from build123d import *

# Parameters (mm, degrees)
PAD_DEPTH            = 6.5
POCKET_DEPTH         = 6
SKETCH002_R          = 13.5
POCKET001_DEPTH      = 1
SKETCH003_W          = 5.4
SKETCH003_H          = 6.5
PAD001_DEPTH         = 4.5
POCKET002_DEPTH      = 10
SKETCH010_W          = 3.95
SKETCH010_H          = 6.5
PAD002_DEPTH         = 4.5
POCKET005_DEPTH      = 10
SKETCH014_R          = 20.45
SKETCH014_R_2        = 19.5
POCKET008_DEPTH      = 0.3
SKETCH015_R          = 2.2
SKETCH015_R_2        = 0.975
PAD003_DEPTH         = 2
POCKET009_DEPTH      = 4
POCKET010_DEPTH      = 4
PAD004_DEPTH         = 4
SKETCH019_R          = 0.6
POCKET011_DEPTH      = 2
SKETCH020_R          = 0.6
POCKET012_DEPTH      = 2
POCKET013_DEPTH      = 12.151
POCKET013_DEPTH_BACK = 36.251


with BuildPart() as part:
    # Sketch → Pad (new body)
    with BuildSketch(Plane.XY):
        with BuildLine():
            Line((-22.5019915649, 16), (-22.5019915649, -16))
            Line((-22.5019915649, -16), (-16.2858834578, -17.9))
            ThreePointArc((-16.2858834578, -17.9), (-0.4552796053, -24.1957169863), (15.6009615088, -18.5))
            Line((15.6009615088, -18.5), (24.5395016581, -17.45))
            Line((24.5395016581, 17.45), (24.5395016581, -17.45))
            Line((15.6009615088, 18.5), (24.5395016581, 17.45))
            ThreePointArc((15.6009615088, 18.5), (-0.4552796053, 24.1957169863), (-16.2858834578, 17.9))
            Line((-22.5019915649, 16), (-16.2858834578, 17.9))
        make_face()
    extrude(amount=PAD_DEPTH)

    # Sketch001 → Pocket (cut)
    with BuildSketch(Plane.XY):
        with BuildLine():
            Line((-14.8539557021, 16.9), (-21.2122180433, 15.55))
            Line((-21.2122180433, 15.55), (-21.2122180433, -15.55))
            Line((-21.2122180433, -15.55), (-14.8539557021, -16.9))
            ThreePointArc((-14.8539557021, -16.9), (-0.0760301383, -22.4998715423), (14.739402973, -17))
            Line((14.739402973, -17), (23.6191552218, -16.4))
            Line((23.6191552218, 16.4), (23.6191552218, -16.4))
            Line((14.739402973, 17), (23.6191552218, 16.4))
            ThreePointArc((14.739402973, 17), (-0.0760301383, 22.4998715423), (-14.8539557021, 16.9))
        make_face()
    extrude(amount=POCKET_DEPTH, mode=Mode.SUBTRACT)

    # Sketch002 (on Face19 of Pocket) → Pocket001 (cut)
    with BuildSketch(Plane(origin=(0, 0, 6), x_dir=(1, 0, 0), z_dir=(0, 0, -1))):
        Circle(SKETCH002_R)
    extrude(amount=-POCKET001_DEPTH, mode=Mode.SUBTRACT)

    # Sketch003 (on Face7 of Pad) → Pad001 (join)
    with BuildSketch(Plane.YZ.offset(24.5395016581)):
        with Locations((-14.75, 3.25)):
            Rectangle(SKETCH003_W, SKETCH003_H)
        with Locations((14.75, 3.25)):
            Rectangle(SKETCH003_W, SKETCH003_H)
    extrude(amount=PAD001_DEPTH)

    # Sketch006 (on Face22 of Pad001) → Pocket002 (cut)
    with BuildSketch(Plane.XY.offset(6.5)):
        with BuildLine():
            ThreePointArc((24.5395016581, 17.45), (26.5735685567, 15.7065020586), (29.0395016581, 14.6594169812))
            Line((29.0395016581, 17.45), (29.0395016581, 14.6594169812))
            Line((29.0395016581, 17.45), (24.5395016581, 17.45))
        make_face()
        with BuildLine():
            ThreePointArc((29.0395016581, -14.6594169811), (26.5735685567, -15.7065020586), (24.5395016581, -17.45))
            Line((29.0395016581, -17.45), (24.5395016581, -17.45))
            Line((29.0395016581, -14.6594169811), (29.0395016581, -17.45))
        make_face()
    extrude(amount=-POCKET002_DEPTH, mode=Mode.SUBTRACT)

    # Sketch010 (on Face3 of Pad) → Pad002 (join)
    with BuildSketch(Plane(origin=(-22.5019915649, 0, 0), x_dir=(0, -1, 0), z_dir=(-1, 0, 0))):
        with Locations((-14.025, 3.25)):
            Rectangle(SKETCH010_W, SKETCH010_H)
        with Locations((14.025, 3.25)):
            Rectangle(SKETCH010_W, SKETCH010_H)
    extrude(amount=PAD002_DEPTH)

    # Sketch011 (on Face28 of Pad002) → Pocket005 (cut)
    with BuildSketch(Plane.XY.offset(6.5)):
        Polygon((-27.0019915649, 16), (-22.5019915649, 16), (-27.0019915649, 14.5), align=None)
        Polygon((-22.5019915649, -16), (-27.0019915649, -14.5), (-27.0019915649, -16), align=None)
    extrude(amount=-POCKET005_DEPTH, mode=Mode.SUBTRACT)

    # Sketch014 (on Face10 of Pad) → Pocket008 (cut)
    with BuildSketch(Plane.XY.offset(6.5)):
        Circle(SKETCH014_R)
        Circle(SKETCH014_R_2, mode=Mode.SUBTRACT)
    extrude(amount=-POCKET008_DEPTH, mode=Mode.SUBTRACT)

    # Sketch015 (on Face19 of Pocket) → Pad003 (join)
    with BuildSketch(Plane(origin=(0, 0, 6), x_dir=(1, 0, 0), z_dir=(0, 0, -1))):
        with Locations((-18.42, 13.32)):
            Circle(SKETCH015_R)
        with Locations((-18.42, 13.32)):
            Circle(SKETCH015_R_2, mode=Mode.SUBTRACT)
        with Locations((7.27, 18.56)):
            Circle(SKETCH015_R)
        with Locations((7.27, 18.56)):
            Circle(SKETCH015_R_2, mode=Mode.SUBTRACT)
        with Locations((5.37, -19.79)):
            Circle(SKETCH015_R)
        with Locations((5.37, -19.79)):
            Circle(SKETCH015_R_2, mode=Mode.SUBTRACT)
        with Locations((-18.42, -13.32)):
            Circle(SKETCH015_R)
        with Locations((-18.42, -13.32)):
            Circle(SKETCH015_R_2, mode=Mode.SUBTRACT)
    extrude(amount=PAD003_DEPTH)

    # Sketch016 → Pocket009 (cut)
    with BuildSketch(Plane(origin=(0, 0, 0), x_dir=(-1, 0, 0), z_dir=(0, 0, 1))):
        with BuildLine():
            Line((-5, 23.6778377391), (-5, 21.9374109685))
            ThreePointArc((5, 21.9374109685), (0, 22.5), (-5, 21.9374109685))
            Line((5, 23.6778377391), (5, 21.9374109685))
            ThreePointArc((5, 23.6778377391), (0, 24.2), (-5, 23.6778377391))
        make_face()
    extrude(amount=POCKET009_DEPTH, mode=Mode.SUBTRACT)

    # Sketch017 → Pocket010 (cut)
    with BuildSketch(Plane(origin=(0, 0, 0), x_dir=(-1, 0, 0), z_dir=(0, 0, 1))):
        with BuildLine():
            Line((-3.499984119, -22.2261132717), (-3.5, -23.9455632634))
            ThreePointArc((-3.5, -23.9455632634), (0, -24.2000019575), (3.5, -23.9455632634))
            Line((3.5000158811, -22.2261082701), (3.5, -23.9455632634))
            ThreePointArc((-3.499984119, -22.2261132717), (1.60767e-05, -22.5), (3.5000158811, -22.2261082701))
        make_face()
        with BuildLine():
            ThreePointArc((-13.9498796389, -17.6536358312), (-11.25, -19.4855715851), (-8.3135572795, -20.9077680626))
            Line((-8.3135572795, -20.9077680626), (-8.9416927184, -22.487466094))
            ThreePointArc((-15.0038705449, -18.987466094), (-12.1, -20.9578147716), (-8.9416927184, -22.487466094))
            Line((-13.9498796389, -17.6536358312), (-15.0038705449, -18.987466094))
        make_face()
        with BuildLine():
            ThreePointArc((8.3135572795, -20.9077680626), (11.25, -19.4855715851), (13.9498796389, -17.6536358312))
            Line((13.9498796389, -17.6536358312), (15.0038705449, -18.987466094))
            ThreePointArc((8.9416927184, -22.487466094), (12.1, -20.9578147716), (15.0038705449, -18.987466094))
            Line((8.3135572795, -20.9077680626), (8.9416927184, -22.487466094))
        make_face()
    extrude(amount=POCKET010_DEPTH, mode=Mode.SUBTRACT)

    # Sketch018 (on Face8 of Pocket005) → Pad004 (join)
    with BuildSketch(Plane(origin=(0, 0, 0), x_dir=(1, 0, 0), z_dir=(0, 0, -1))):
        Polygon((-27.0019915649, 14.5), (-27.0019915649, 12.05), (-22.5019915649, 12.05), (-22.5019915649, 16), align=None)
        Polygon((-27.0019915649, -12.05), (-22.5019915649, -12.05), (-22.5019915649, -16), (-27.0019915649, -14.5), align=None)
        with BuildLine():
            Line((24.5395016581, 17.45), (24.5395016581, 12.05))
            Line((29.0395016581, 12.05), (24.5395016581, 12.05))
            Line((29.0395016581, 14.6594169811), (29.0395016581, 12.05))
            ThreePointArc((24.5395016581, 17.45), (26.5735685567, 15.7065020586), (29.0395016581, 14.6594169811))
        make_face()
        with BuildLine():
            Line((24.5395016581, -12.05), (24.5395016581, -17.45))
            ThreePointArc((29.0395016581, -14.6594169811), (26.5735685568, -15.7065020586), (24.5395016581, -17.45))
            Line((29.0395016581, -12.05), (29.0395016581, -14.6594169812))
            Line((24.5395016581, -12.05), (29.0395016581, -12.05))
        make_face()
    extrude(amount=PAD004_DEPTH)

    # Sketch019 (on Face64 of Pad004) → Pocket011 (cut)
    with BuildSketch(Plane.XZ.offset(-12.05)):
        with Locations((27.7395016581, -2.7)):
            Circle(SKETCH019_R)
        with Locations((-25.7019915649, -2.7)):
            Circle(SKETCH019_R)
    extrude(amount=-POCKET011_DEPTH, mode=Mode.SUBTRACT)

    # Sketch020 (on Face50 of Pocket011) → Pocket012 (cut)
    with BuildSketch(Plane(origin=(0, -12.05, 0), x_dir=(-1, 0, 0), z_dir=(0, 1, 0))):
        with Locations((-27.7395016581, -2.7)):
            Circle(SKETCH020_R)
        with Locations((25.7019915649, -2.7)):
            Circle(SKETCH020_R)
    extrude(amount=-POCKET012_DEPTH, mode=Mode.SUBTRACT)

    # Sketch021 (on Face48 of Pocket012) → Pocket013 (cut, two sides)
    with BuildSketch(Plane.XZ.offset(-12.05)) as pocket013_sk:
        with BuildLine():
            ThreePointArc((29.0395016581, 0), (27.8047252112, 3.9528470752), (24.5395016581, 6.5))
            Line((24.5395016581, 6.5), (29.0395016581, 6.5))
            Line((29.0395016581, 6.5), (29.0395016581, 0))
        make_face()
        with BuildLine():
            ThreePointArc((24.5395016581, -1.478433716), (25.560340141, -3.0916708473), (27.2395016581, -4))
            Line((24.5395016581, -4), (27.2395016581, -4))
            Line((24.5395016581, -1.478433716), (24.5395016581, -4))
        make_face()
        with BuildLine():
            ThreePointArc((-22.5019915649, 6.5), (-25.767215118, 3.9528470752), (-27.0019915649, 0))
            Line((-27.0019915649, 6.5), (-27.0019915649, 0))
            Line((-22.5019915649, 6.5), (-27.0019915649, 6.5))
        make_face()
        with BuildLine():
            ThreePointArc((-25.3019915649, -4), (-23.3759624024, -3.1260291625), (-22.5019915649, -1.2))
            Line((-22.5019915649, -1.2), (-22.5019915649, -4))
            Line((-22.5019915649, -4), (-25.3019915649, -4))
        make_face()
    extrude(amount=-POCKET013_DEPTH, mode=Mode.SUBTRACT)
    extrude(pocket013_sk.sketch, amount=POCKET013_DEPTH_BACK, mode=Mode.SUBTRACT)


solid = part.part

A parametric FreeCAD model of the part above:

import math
import FreeCAD as App
import Part
import Sketcher


def add_polygon(sketch, points):
    """Adds a closed chain of lines whose ends are joined by coincident constraints."""
    first, n = sketch.GeometryCount, len(points)
    for a, b in zip(points, points[1:] + points[:1]):
        sketch.addGeometry(Part.LineSegment(App.Vector(*a, 0), App.Vector(*b, 0)), False)
    for i in range(n):
        sketch.addConstraint(Sketcher.Constraint("Coincident", first + i, 2, first + (i + 1) % n, 1))

doc = App.newDocument("Part")
body = doc.addObject("PartDesign::Body", "Body")

# Sketch on XY plane
sketch1 = body.newObject("Sketcher::SketchObject", "Sketch")
sketch1.AttachmentSupport = (doc.getObject("XY_Plane"), [""])
sketch1.MapMode = "FlatFace"
sketch1.addGeometry([
    Part.LineSegment(App.Vector(-23, 16, 0), App.Vector(-23, -16, 0)),  # 0
    Part.LineSegment(App.Vector(-23, -16, 0), App.Vector(-16, -18, 0)),  # 1
    Part.ArcOfCircle(Part.Circle(App.Vector(0, 0, 0), App.Vector(0, 0, 1), 24), math.radians(-132), math.radians(-50)),  # 2
    Part.LineSegment(App.Vector(16, -18, 0), App.Vector(25, -17, 0)),  # 3
    Part.LineSegment(App.Vector(25, -17, 0), App.Vector(25, 17, 0)),  # 4
    Part.LineSegment(App.Vector(25, 17, 0), App.Vector(16, 18, 0)),  # 5
    Part.ArcOfCircle(Part.Circle(App.Vector(0, 0, 0), App.Vector(0, 0, 1), 24), math.radians(50), math.radians(132)),  # 6
    Part.LineSegment(App.Vector(-16, 18, 0), App.Vector(-23, 16, 0)),  # 7
], False)
sketch1.addConstraint([
    Sketcher.Constraint("Coincident", 0, 2, 1, 1),
    Sketcher.Constraint("Coincident", 1, 2, 2, 1),
    Sketcher.Constraint("Coincident", 2, 2, 3, 1),
    Sketcher.Constraint("Coincident", 3, 2, 4, 1),
    Sketcher.Constraint("Coincident", 4, 2, 5, 1),
    Sketcher.Constraint("Coincident", 5, 2, 6, 1),
    Sketcher.Constraint("Coincident", 6, 2, 7, 1),
    Sketcher.Constraint("Coincident", 7, 2, 0, 1),
    Sketcher.Constraint("Vertical", 0),
    Sketcher.Constraint("Vertical", 4),
    Sketcher.Constraint("Coincident", 2, 3, -1, 1),
    Sketcher.Constraint("Coincident", 6, 3, -1, 1),
    Sketcher.Constraint("Equal", 2, 6),
    Sketcher.Constraint("Vertical", 2, 2, 5, 2),
    Sketcher.Constraint("Vertical", 1, 2, 6, 2),
    Sketcher.Constraint("Equal", 3, 5),
    Sketcher.Constraint("Equal", 1, 7),
    Sketcher.Constraint("Radius", 2, 24.2),
    Sketcher.Constraint("DistanceY", 0, 2, 0, 1, 32.0),
    Sketcher.Constraint("Distance", 3, 9.0),
    Sketcher.Constraint("DistanceY", 4, 1, 4, 2, 34.9),
    Sketcher.Constraint("DistanceY", 2, 2, 5, 2, 37.0),
    Sketcher.Constraint("Distance", 1, 6.5),
    Sketcher.Constraint("DistanceY", 1, 2, -1, 1, 17.9),
])
pad1 = body.newObject("PartDesign::Pad", "Pad")
pad1.Profile = sketch1
pad1.Length = 6.5

# Sketch on XY plane
sketch2 = body.newObject("Sketcher::SketchObject", "Sketch001")
sketch2.AttachmentSupport = (doc.getObject("XY_Plane"), [""])
sketch2.MapMode = "FlatFace"
sketch2.addGeometry([
    Part.LineSegment(App.Vector(-15, 17, 0), App.Vector(-21, 16, 0)),  # 0
    Part.LineSegment(App.Vector(-21, 16, 0), App.Vector(-21, -16, 0)),  # 1
    Part.LineSegment(App.Vector(-21, -16, 0), App.Vector(-15, -17, 0)),  # 2
    Part.ArcOfCircle(Part.Circle(App.Vector(0, 0, 0), App.Vector(0, 0, 1), 22), math.radians(-131), math.radians(-49)),  # 3
    Part.LineSegment(App.Vector(15, -17, 0), App.Vector(24, -16, 0)),  # 4
    Part.LineSegment(App.Vector(24, -16, 0), App.Vector(24, 16, 0)),  # 5
    Part.LineSegment(App.Vector(24, 16, 0), App.Vector(15, 17, 0)),  # 6
    Part.ArcOfCircle(Part.Circle(App.Vector(0, 0, 0), App.Vector(0, 0, 1), 22), math.radians(49), math.radians(131)),  # 7
], False)
sketch2.addConstraint([
    Sketcher.Constraint("Coincident", 0, 2, 1, 1),
    Sketcher.Constraint("Coincident", 1, 2, 2, 1),
    Sketcher.Constraint("Coincident", 2, 2, 3, 1),
    Sketcher.Constraint("Coincident", 3, 2, 4, 1),
    Sketcher.Constraint("Coincident", 4, 2, 5, 1),
    Sketcher.Constraint("Coincident", 5, 2, 6, 1),
    Sketcher.Constraint("Coincident", 6, 2, 7, 1),
    Sketcher.Constraint("Coincident", 7, 2, 0, 1),
    Sketcher.Constraint("Vertical", 1),
    Sketcher.Constraint("Vertical", 5),
    Sketcher.Constraint("Coincident", 3, 3, -1, 1),
    Sketcher.Constraint("Coincident", 7, 3, -1, 1),
    Sketcher.Constraint("Equal", 3, 7),
    Sketcher.Constraint("Vertical", 3, 2, 6, 2),
    Sketcher.Constraint("Vertical", 2, 2, 7, 2),
    Sketcher.Constraint("Equal", 0, 2),
    Sketcher.Constraint("Equal", 4, 6),
    Sketcher.Constraint("Radius", 3, 22.5),
    Sketcher.Constraint("DistanceY", 1, 2, 1, 1, 31.1),
    Sketcher.Constraint("DistanceY", 5, 1, 5, 2, 32.8),
    Sketcher.Constraint("DistanceY", 3, 2, -1, 1, 17.0),
    Sketcher.Constraint("Distance", 0, 6.5),
    Sketcher.Constraint("Distance", 4, 8.9),
    Sketcher.Constraint("DistanceY", 2, 2, -1, 1, 16.9),
])
pocket1 = body.newObject("PartDesign::Pocket", "Pocket")
pocket1.Profile = sketch2
pocket1.Length = 6
pocket1.Reversed = True

# Sketch on XY plane
sketch3 = body.newObject("Sketcher::SketchObject", "Sketch002")
sketch3.AttachmentSupport = (doc.getObject("XY_Plane"), [""])
sketch3.MapMode = "FlatFace"
sketch3.AttachmentOffset = App.Placement(App.Vector(0, 0, 6), App.Rotation())
sketch3.addGeometry(Part.Circle(App.Vector(0, 0, 0), App.Vector(0, 0, 1), 14), False)
sketch3.addConstraint([
    Sketcher.Constraint("Coincident", 0, 3, -1, 1),
    Sketcher.Constraint("Diameter", 0, 27.0),
])
pocket2 = body.newObject("PartDesign::Pocket", "Pocket001")
pocket2.Profile = sketch3
pocket2.Length = 1
pocket2.Reversed = True

# Sketch on YZ plane
sketch4 = body.newObject("Sketcher::SketchObject", "Sketch003")
sketch4.AttachmentSupport = (doc.getObject("YZ_Plane"), [""])
sketch4.MapMode = "FlatFace"
sketch4.AttachmentOffset = App.Placement(App.Vector(0, 0, 24.539502), App.Rotation())
add_polygon(sketch4, [(-17, 6), (-17, 0), (-12, 0), (-12, 6)])  # lines 0-3
add_polygon(sketch4, [(12, 6), (12, 0), (17, 0), (17, 6)])  # lines 4-7
sketch4.addConstraint([
    Sketcher.Constraint("Vertical", 0),
    Sketcher.Constraint("Horizontal", 1),
    Sketcher.Constraint("Vertical", 2),
    Sketcher.Constraint("Horizontal", 3),
    Sketcher.Constraint("Vertical", 4),
    Sketcher.Constraint("Horizontal", 5),
    Sketcher.Constraint("Vertical", 6),
    Sketcher.Constraint("Horizontal", 7),
    Sketcher.Constraint("Symmetric", 1, 2, 4, 2, -1, 1),
    Sketcher.Constraint("Symmetric", 0, 2, 5, 2, -2),
    Sketcher.Constraint("Horizontal", 3, 2, 6, 2),
    Sketcher.Constraint("DistanceX", 1, 1, 1, 2, 5.4),
    Sketcher.Constraint("DistanceY", 0, 2, 0, 1, 6.5),
    Sketcher.Constraint("DistanceX", 1, 2, 4, 2, 24.1),
])
pad2 = body.newObject("PartDesign::Pad", "Pad001")
pad2.Profile = sketch4
pad2.Length = 4.5

# Sketch on XY plane
sketch5 = body.newObject("Sketcher::SketchObject", "Sketch004")
sketch5.AttachmentSupport = (doc.getObject("XY_Plane"), [""])
sketch5.MapMode = "FlatFace"
sketch5.AttachmentOffset = App.Placement(App.Vector(0, 0, 6.5), App.Rotation())
sketch5.addGeometry([
    Part.ArcOfCircle(Part.Circle(App.Vector(31.2, 23.1, 0), App.Vector(0, 0, 1), 8.8), math.radians(-139), math.radians(-104)),  # 0
    Part.LineSegment(App.Vector(29, 14.7, 0), App.Vector(29, 17.4, 0)),  # 1
    Part.LineSegment(App.Vector(29, 17.4, 0), App.Vector(24.5, 17.4, 0)),  # 2
    Part.ArcOfCircle(Part.Circle(App.Vector(31.2, -23.1, 0), App.Vector(0, 0, 1), 8.8), math.radians(104), math.radians(139)),  # 3
    Part.LineSegment(App.Vector(24.5, -17.4, 0), App.Vector(29, -17.4, 0)),  # 4
    Part.LineSegment(App.Vector(29, -17.4, 0), App.Vector(29, -14.7, 0)),  # 5
], False)
sketch5.addConstraint([
    Sketcher.Constraint("Coincident", 0, 2, 1, 1),
    Sketcher.Constraint("Coincident", 1, 2, 2, 1),
    Sketcher.Constraint("Coincident", 2, 2, 0, 1),
    Sketcher.Constraint("Coincident", 3, 2, 4, 1),
    Sketcher.Constraint("Coincident", 4, 2, 5, 1),
    Sketcher.Constraint("Coincident", 5, 2, 3, 1),
    Sketcher.Constraint("Vertical", 1),
    Sketcher.Constraint("Horizontal", 2),
    Sketcher.Constraint("Horizontal", 4),
    Sketcher.Constraint("Vertical", 5),
    Sketcher.Constraint("Equal", 0, 3),
    Sketcher.Constraint("Symmetric", 0, 3, 3, 3, -1),
    Sketcher.Constraint("Symmetric", 1, 2, 4, 2, -1),
    Sketcher.Constraint("DistanceX", 2, 2, 2, 1, 4.5),
    Sketcher.Constraint("DistanceY", 3, 3, 0, 3, 46.3),
    Sketcher.Constraint("DistanceY", 1, 2, 0, 3, 5.7),
    Sketcher.Constraint("DistanceX", 0, 2, 0, 3, 2.15),
    Sketcher.Constraint("DistanceX", -1, 1, 0, 3, 31.189502),
])
pocket3 = body.newObject("PartDesign::Pocket", "Pocket002")
pocket3.Profile = sketch5
pocket3.Length = 10

# Sketch on YZ plane
sketch6 = body.newObject("Sketcher::SketchObject", "Sketch005")
sketch6.AttachmentSupport = (doc.getObject("YZ_Plane"), [""])
sketch6.MapMode = "FlatFace"
sketch6.AttachmentOffset = App.Placement(App.Vector(0, 0, -22.501992), App.Rotation())
add_polygon(sketch6, [(16, 6.5), (16, 0), (12.1, 0), (12.1, 6.5)])  # lines 0-3
add_polygon(sketch6, [(-12.1, 6.5), (-12.1, 0), (-16, 0), (-16, 6.5)])  # lines 4-7
sketch6.addConstraint([
    Sketcher.Constraint("Vertical", 0),
    Sketcher.Constraint("Horizontal", 1),
    Sketcher.Constraint("Vertical", 2),
    Sketcher.Constraint("Horizontal", 3),
    Sketcher.Constraint("Vertical", 4),
    Sketcher.Constraint("Horizontal", 5),
    Sketcher.Constraint("Vertical", 6),
    Sketcher.Constraint("Horizontal", 7),
    Sketcher.Constraint("Symmetric", 1, 2, 4, 2, -1, 1),
    Sketcher.Constraint("Symmetric", 0, 2, 5, 2, -2),
    Sketcher.Constraint("Horizontal", 3, 2, 6, 2),
    Sketcher.Constraint("DistanceY", 0, 2, 0, 1, 6.5),
    Sketcher.Constraint("DistanceX", -1, 1, 0, 2, 16.0),
    Sketcher.Constraint("DistanceX", 1, 2, 1, 1, 3.95),
])
pad3 = body.newObject("PartDesign::Pad", "Pad002")
pad3.Profile = sketch6
pad3.Length = 4.5
pad3.Reversed = True

# Sketch on XY plane
sketch7 = body.newObject("Sketcher::SketchObject", "Sketch006")
sketch7.AttachmentSupport = (doc.getObject("XY_Plane"), [""])
sketch7.MapMode = "FlatFace"
sketch7.AttachmentOffset = App.Placement(App.Vector(0, 0, 6.5), App.Rotation())
add_polygon(sketch7, [(-22.5, 16), (-27, 16), (-27, 14.5)])  # lines 0-2
add_polygon(sketch7, [(-22.5, -16), (-27, -14.5), (-27, -16)])  # lines 3-5
sketch7.addConstraint([
    Sketcher.Constraint("Horizontal", 0),
    Sketcher.Constraint("Vertical", 1),
    Sketcher.Constraint("Vertical", 4),
    Sketcher.Constraint("Horizontal", 5),
    Sketcher.Constraint("Symmetric", 1, 2, 3, 2, -1),
    Sketcher.Constraint("Symmetric", 2, 2, 5, 2, -1),
    Sketcher.Constraint("DistanceX", 0, 2, 0, 1, 4.5),
    Sketcher.Constraint("DistanceY", 1, 2, 1, 1, 1.5),
    Sketcher.Constraint("DistanceY", -1, 1, 0, 2, 16.0),
    Sketcher.Constraint("DistanceX", 0, 2, -1, 1, 27.001992),
])
pocket4 = body.newObject("PartDesign::Pocket", "Pocket003")
pocket4.Profile = sketch7
pocket4.Length = 10

# Sketch on XY plane
sketch8 = body.newObject("Sketcher::SketchObject", "Sketch007")
sketch8.AttachmentSupport = (doc.getObject("XY_Plane"), [""])
sketch8.MapMode = "FlatFace"
sketch8.AttachmentOffset = App.Placement(App.Vector(0, 0, 6.5), App.Rotation())
sketch8.addGeometry([
    Part.Circle(App.Vector(0, 0, 0), App.Vector(0, 0, 1), 20),
    Part.Circle(App.Vector(0, 0, 0), App.Vector(0, 0, 1), 20),
], False)
sketch8.addConstraint([
    Sketcher.Constraint("Coincident", 0, 3, -1, 1),
    Sketcher.Constraint("Coincident", 1, 3, -1, 1),
    Sketcher.Constraint("Diameter", 1, 39.0),
    Sketcher.Constraint("Diameter", 0, 40.9),
])
pocket5 = body.newObject("PartDesign::Pocket", "Pocket004")
pocket5.Profile = sketch8
pocket5.Length = 0.3

# Sketch on XY plane
sketch9 = body.newObject("Sketcher::SketchObject", "Sketch008")
sketch9.AttachmentSupport = (doc.getObject("XY_Plane"), [""])
sketch9.MapMode = "FlatFace"
sketch9.AttachmentOffset = App.Placement(App.Vector(0, 0, 6), App.Rotation())
sketch9.addGeometry([
    Part.Circle(App.Vector(-18.4, -13.3, 0), App.Vector(0, 0, 1), 2.2),  # 0
    Part.Circle(App.Vector(-18.4, -13.3, 0), App.Vector(0, 0, 1), 1),  # 1
    Part.Circle(App.Vector(7.3, -18.6, 0), App.Vector(0, 0, 1), 2.2),  # 2
    Part.Circle(App.Vector(7.3, -18.6, 0), App.Vector(0, 0, 1), 1),  # 3
    Part.Circle(App.Vector(5.4, 19.8, 0), App.Vector(0, 0, 1), 2.2),  # 4
    Part.Circle(App.Vector(5.4, 19.8, 0), App.Vector(0, 0, 1), 1),  # 5
    Part.Circle(App.Vector(-18.4, 13.3, 0), App.Vector(0, 0, 1), 2.2),  # 6
    Part.Circle(App.Vector(-18.4, 13.3, 0), App.Vector(0, 0, 1), 1),  # 7
], False)
sketch9.addConstraint([
    Sketcher.Constraint("Coincident", 1, 3, 0, 3),
    Sketcher.Constraint("Coincident", 3, 3, 2, 3),
    Sketcher.Constraint("Coincident", 5, 3, 4, 3),
    Sketcher.Constraint("Coincident", 7, 3, 6, 3),
    Sketcher.Constraint("Equal", 0, 2),
    Sketcher.Constraint("Equal", 1, 3),
    Sketcher.Constraint("Equal", 2, 4),
    Sketcher.Constraint("Equal", 3, 5),
    Sketcher.Constraint("Equal", 4, 6),
    Sketcher.Constraint("Equal", 5, 7),
    Sketcher.Constraint("Symmetric", 0, 3, 6, 3, -1),
    Sketcher.Constraint("Diameter", 0, 4.4),
    Sketcher.Constraint("Diameter", 1, 1.95),
    Sketcher.Constraint("DistanceX", 4, 3, 2, 3, 1.9),
    Sketcher.Constraint("DistanceX", 0, 3, -1, 1, 18.42),
    Sketcher.Constraint("DistanceY", 0, 3, -1, 1, 13.32),
    Sketcher.Constraint("DistanceX", -1, 1, 2, 3, 7.27),
    Sketcher.Constraint("DistanceY", 2, 3, -1, 1, 18.56),
    Sketcher.Constraint("DistanceY", -1, 1, 4, 3, 19.79),
])
pad4 = body.newObject("PartDesign::Pad", "Pad003")
pad4.Profile = sketch9
pad4.Length = 2
pad4.Reversed = True

# Sketch on XY plane
sketch10 = body.newObject("Sketcher::SketchObject", "Sketch009")
sketch10.AttachmentSupport = (doc.getObject("XY_Plane"), [""])
sketch10.MapMode = "FlatFace"
sketch10.addGeometry([
    Part.LineSegment(App.Vector(5, -23.7, 0), App.Vector(5, -21.9, 0)),
    Part.ArcOfCircle(Part.Circle(App.Vector(0, 0, 0), App.Vector(0, 0, 1), 22.5), math.radians(-103), math.radians(-77)),
    Part.LineSegment(App.Vector(-5, -21.9, 0), App.Vector(-5, -23.7, 0)),
    Part.ArcOfCircle(Part.Circle(App.Vector(0, 0, 0), App.Vector(0, 0, 1), 24.2), math.radians(-102), math.radians(-78)),
], False)
sketch10.addConstraint([
    Sketcher.Constraint("Coincident", 0, 2, 1, 2),
    Sketcher.Constraint("Coincident", 1, 1, 2, 1),
    Sketcher.Constraint("Coincident", 2, 2, 3, 1),
    Sketcher.Constraint("Coincident", 3, 2, 0, 1),
    Sketcher.Constraint("Vertical", 0),
    Sketcher.Constraint("Vertical", 2),
    Sketcher.Constraint("Coincident", 1, 3, -1, 1),
    Sketcher.Constraint("Coincident", 3, 3, -1, 1),
    Sketcher.Constraint("Horizontal", 0, 2, 1, 1),
    Sketcher.Constraint("Radius", 1, 22.5),
    Sketcher.Constraint("Radius", 3, 24.2),
    Sketcher.Constraint("DistanceX", -1, 1, 0, 2, 5.0),
])
pocket6 = body.newObject("PartDesign::Pocket", "Pocket005")
pocket6.Profile = sketch10
pocket6.Length = 4
pocket6.Reversed = True

# Sketch on XY plane
sketch11 = body.newObject("Sketcher::SketchObject", "Sketch010")
sketch11.AttachmentSupport = (doc.getObject("XY_Plane"), [""])
sketch11.MapMode = "FlatFace"
sketch11.addGeometry([
    Part.LineSegment(App.Vector(3.5, 22.2, 0), App.Vector(3.5, 23.9, 0)),  # 0
    Part.ArcOfCircle(Part.Circle(App.Vector(0, 0, 0), App.Vector(0, 0, 1), 24.2), math.radians(81.68), math.radians(98.32)),  # 1
    Part.LineSegment(App.Vector(-3.5, 23.9, 0), App.Vector(-3.5, 22.2, 0)),  # 2
    Part.ArcOfCircle(Part.Circle(App.Vector(0, 0, 0), App.Vector(0, 0, 1), 22.5), math.radians(81.05), math.radians(98.95)),  # 3
    Part.ArcOfCircle(Part.Circle(App.Vector(0, 0, 0), App.Vector(0, 0, 1), 22.5), math.radians(51.68), math.radians(68.32)),  # 4
    Part.LineSegment(App.Vector(13.9, 17.7, 0), App.Vector(15, 19, 0)),  # 5
    Part.ArcOfCircle(Part.Circle(App.Vector(0, 0, 0), App.Vector(0, 0, 1), 24.2), math.radians(51.68), math.radians(68.32)),  # 6
    Part.LineSegment(App.Vector(8.9, 22.5, 0), App.Vector(8.3, 20.9, 0)),  # 7
    Part.ArcOfCircle(Part.Circle(App.Vector(0, 0, 0), App.Vector(0, 0, 1), 22.5), math.radians(111.68), math.radians(128.32)),  # 8
    Part.LineSegment(App.Vector(-8.3, 20.9, 0), App.Vector(-8.9, 22.5, 0)),  # 9
    Part.ArcOfCircle(Part.Circle(App.Vector(0, 0, 0), App.Vector(0, 0, 1), 24.2), math.radians(111.68), math.radians(128.32)),  # 10
    Part.LineSegment(App.Vector(-15, 19, 0), App.Vector(-13.9, 17.7, 0)),  # 11
], False)
sketch11.addConstraint([
    Sketcher.Constraint("Coincident", 0, 2, 1, 1),
    Sketcher.Constraint("Coincident", 1, 2, 2, 1),
    Sketcher.Constraint("Coincident", 2, 2, 3, 2),
    Sketcher.Constraint("Coincident", 3, 1, 0, 1),
    Sketcher.Constraint("Coincident", 4, 1, 5, 1),
    Sketcher.Constraint("Coincident", 5, 2, 6, 1),
    Sketcher.Constraint("Coincident", 6, 2, 7, 1),
    Sketcher.Constraint("Coincident", 7, 2, 4, 2),
    Sketcher.Constraint("Coincident", 8, 1, 9, 1),
    Sketcher.Constraint("Coincident", 9, 2, 10, 1),
    Sketcher.Constraint("Coincident", 10, 2, 11, 1),
    Sketcher.Constraint("Coincident", 11, 2, 8, 2),
    Sketcher.Constraint("Coincident", 3, 3, -1, 1),
    Sketcher.Constraint("Coincident", 4, 3, -1, 1),
    Sketcher.Constraint("Coincident", 6, 3, -1, 1),
    Sketcher.Constraint("Coincident", 8, 3, -1, 1),
    Sketcher.Constraint("Coincident", 10, 3, -1, 1),
    Sketcher.Constraint("Equal", 3, 4),
    Sketcher.Constraint("Equal", 4, 8),
    Sketcher.Constraint("Equal", 6, 10),
    Sketcher.Constraint("Symmetric", 0, 2, 1, 2, -2),
    Sketcher.Constraint("Parallel", 0, 2),
    Sketcher.Constraint("Horizontal", 7, 2, 8, 1),
    Sketcher.Constraint("Horizontal", 6, 2, 9, 2),
    Sketcher.Constraint("Horizontal", 5, 2, 10, 2),
    Sketcher.Constraint("Horizontal", 4, 1, 11, 2),
    Sketcher.Constraint("Radius", 3, 22.5),
    Sketcher.Constraint("Radius", 6, 24.2),
    Sketcher.Constraint("DistanceX", 1, 2, 0, 2, 7.0),
    Sketcher.Constraint("DistanceY", 5, 2, 6, 2, 3.5),
    Sketcher.Constraint("Radius", 1, 24.199816),
    Sketcher.Constraint("DistanceY", 7, 2, 6, 2, 1.579698),
    Sketcher.Constraint("Distance", 0, 1.71945),
    Sketcher.Constraint("DistanceY", -1, 1, 2, 2, 22.226108),
    Sketcher.Constraint("DistanceX", -1, 1, 4, 1, 13.94988),
    Sketcher.Constraint("DistanceX", -1, 1, 5, 2, 15.003871),
])
pocket7 = body.newObject("PartDesign::Pocket", "Pocket006")
pocket7.Profile = sketch11
pocket7.Length = 4
pocket7.Reversed = True

# Sketch on XY plane
sketch12 = body.newObject("Sketcher::SketchObject", "Sketch011")
sketch12.AttachmentSupport = (doc.getObject("XY_Plane"), [""])
sketch12.MapMode = "FlatFace"
add_polygon(sketch12, [(-27, -14.5), (-27, -12.1), (-22.5, -12.1), (-22.5, -16)])  # lines 0-3
add_polygon(sketch12, [(-22.5, 12.1), (-27, 12.1), (-27, 14.5), (-22.5, 16)])  # lines 4-7
sketch12.addGeometry(Part.LineSegment(App.Vector(24.5, -17.4, 0), App.Vector(24.5, -12.1, 0)), False)  # 8
sketch12.addGeometry(Part.LineSegment(App.Vector(24.5, -12.1, 0), App.Vector(29, -12.1, 0)), False)  # 9
sketch12.addGeometry(Part.LineSegment(App.Vector(29, -12.1, 0), App.Vector(29, -14.7, 0)), False)  # 10
sketch12.addGeometry(Part.ArcOfCircle(Part.Circle(App.Vector(31.2, -23.1, 0), App.Vector(0, 0, 1), 8.8), math.radians(104), math.radians(139)), False)  # 11
sketch12.addGeometry(Part.LineSegment(App.Vector(24.5, 12.1, 0), App.Vector(24.5, 17.4, 0)), False)  # 12
sketch12.addGeometry(Part.ArcOfCircle(Part.Circle(App.Vector(31.2, 23.2, 0), App.Vector(0, 0, 1), 8.8), math.radians(-139), math.radians(-104)), False)  # 13
sketch12.addGeometry(Part.LineSegment(App.Vector(29, 14.7, 0), App.Vector(29, 12.1, 0)), False)  # 14
sketch12.addGeometry(Part.LineSegment(App.Vector(29, 12.1, 0), App.Vector(24.5, 12.1, 0)), False)  # 15
sketch12.addConstraint([
    Sketcher.Constraint("Coincident", 8, 2, 9, 1),
    Sketcher.Constraint("Coincident", 9, 2, 10, 1),
    Sketcher.Constraint("Coincident", 10, 2, 11, 1),
    Sketcher.Constraint("Coincident", 11, 2, 8, 1),
    Sketcher.Constraint("Coincident", 12, 2, 13, 1),
    Sketcher.Constraint("Coincident", 13, 2, 14, 1),
    Sketcher.Constraint("Coincident", 14, 2, 15, 1),
    Sketcher.Constraint("Coincident", 15, 2, 12, 1),
    Sketcher.Constraint("Vertical", 0),
    Sketcher.Constraint("Horizontal", 1),
    Sketcher.Constraint("Vertical", 2),
    Sketcher.Constraint("Horizontal", 4),
    Sketcher.Constraint("Vertical", 5),
    Sketcher.Constraint("Vertical", 7),
    Sketcher.Constraint("Vertical", 8),
    Sketcher.Constraint("Horizontal", 9),
    Sketcher.Constraint("Vertical", 10),
    Sketcher.Constraint("Vertical", 12),
    Sketcher.Constraint("Vertical", 14),
    Sketcher.Constraint("Horizontal", 15),
    Sketcher.Constraint("Equal", 11, 13),
    Sketcher.Constraint("Symmetric", 11, 3, 13, 3, -1),
    Sketcher.Constraint("Symmetric", 0, 2, 4, 2, -1),
    Sketcher.Constraint("Symmetric", 2, 2, 6, 2, -1),
    Sketcher.Constraint("Symmetric", 9, 2, 14, 2, -1),
    Sketcher.Constraint("Horizontal", 1, 2, 8, 2),
    Sketcher.Constraint("Vertical", 11, 2, 12, 2),
    Sketcher.Constraint("Equal", 4, 9),
    Sketcher.Constraint("Equal", 0, 5),
    Sketcher.Constraint("DistanceX", 1, 1, 1, 2, 4.5),
    Sketcher.Constraint("DistanceY", 8, 1, 8, 2, 5.4),
    Sketcher.Constraint("DistanceY", 2, 2, -1, 1, 16.0),
    Sketcher.Constraint("DistanceY", 3, 2, 5, 2, 29.0),
    Sketcher.Constraint("DistanceY", 0, 1, 0, 2, 2.45),
    Sketcher.Constraint("DistanceY", 11, 3, 13, 3, 46.3),
    Sketcher.Constraint("DistanceX", 8, 2, 11, 3, 6.65),
    Sketcher.Constraint("DistanceX", -1, 1, 11, 3, 31.189502),
    Sketcher.Constraint("DistanceX", 0, 2, -1, 1, 27.001992),
])
pad5 = body.newObject("PartDesign::Pad", "Pad004")
pad5.Profile = sketch12
pad5.Length = 4
pad5.Reversed = True

# Sketch on XZ plane
sketch13 = body.newObject("Sketcher::SketchObject", "Sketch012")
sketch13.AttachmentSupport = (doc.getObject("XZ_Plane"), [""])
sketch13.MapMode = "FlatFace"
sketch13.AttachmentOffset = App.Placement(App.Vector(0, 0, -12.05), App.Rotation())
sketch13.addGeometry([
    Part.Circle(App.Vector(27.7, -2.7, 0), App.Vector(0, 0, 1), 0.6),
    Part.Circle(App.Vector(-25.7, -2.7, 0), App.Vector(0, 0, 1), 0.6),
], False)
sketch13.addConstraint([
    Sketcher.Constraint("Equal", 0, 1),
    Sketcher.Constraint("Horizontal", 0, 3, 1, 3),
    Sketcher.Constraint("Diameter", 0, 1.2),
    Sketcher.Constraint("DistanceY", 0, 3, -1, 1, 2.7),
    Sketcher.Constraint("DistanceX", -1, 1, 0, 3, 27.739502),
    Sketcher.Constraint("DistanceX", 1, 3, -1, 1, 25.701992),
])
pocket8 = body.newObject("PartDesign::Pocket", "Pocket007")
pocket8.Profile = sketch13
pocket8.Length = 2

# Sketch on XZ plane
sketch14 = body.newObject("Sketcher::SketchObject", "Sketch013")
sketch14.AttachmentSupport = (doc.getObject("XZ_Plane"), [""])
sketch14.MapMode = "FlatFace"
sketch14.AttachmentOffset = App.Placement(App.Vector(0, 0, 12.05), App.Rotation())
sketch14.addGeometry([
    Part.Circle(App.Vector(27.7, -2.7, 0), App.Vector(0, 0, 1), 0.6),
    Part.Circle(App.Vector(-25.7, -2.7, 0), App.Vector(0, 0, 1), 0.6),
], False)
sketch14.addConstraint([
    Sketcher.Constraint("Equal", 0, 1),
    Sketcher.Constraint("Horizontal", 0, 3, 1, 3),
    Sketcher.Constraint("Diameter", 0, 1.2),
    Sketcher.Constraint("DistanceY", 0, 3, -1, 1, 2.7),
    Sketcher.Constraint("DistanceX", -1, 1, 0, 3, 27.739502),
    Sketcher.Constraint("DistanceX", 1, 3, -1, 1, 25.701992),
])
pocket9 = body.newObject("PartDesign::Pocket", "Pocket008")
pocket9.Profile = sketch14
pocket9.Length = 2
pocket9.Reversed = True

# Sketch on XZ plane
sketch15 = body.newObject("Sketcher::SketchObject", "Sketch014")
sketch15.AttachmentSupport = (doc.getObject("XZ_Plane"), [""])
sketch15.MapMode = "FlatFace"
sketch15.AttachmentOffset = App.Placement(App.Vector(0, 0, -12.05), App.Rotation())
sketch15.addGeometry([
    Part.ArcOfCircle(Part.Circle(App.Vector(22.1, 0, 0), App.Vector(0, 0, 1), 6.9), math.radians(0), math.radians(69)),  # 0
    Part.LineSegment(App.Vector(29, 0, 0), App.Vector(29, 6.5, 0)),  # 1
    Part.LineSegment(App.Vector(29, 6.5, 0), App.Vector(24.5, 6.5, 0)),  # 2
    Part.ArcOfCircle(Part.Circle(App.Vector(28.1, -0.3, 0), App.Vector(0, 0, 1), 3.8), math.radians(-162), math.radians(-104)),  # 3
    Part.LineSegment(App.Vector(24.5, -1.5, 0), App.Vector(24.5, -4, 0)),  # 4
    Part.LineSegment(App.Vector(24.5, -4, 0), App.Vector(27.2, -4, 0)),  # 5
    Part.ArcOfCircle(Part.Circle(App.Vector(-20.1, 0, 0), App.Vector(0, 0, 1), 6.9), math.radians(111), math.radians(180)),  # 6
    Part.LineSegment(App.Vector(-22.5, 6.5, 0), App.Vector(-27, 6.5, 0)),  # 7
    Part.LineSegment(App.Vector(-27, 6.5, 0), App.Vector(-27, 0, 0)),  # 8
    Part.ArcOfCircle(Part.Circle(App.Vector(-25.5, -1, 0), App.Vector(0, 0, 1), 3), math.radians(-86), math.radians(-4)),  # 9
    Part.LineSegment(App.Vector(-25.3, -4, 0), App.Vector(-22.5, -4, 0)),  # 10
    Part.LineSegment(App.Vector(-22.5, -4, 0), App.Vector(-22.5, -1.2, 0)),  # 11
], False)
sketch15.addConstraint([
    Sketcher.Constraint("Tangent", 0, 1, 1, 1),
    Sketcher.Constraint("Coincident", 1, 2, 2, 1),
    Sketcher.Constraint("Coincident", 2, 2, 0, 2),
    Sketcher.Constraint("Coincident", 3, 1, 4, 1),
    Sketcher.Constraint("Coincident", 4, 2, 5, 1),
    Sketcher.Constraint("Coincident", 5, 2, 3, 2),
    Sketcher.Constraint("Coincident", 6, 1, 7, 1),
    Sketcher.Constraint("Coincident", 7, 2, 8, 1),
    Sketcher.Constraint("Tangent", 8, 2, 6, 2),
    Sketcher.Constraint("Coincident", 9, 1, 10, 1),
    Sketcher.Constraint("Coincident", 10, 2, 11, 1),
    Sketcher.Constraint("Coincident", 11, 2, 9, 2),
    Sketcher.Constraint("Vertical", 1),
    Sketcher.Constraint("Horizontal", 2),
    Sketcher.Constraint("Vertical", 4),
    Sketcher.Constraint("Horizontal", 5),
    Sketcher.Constraint("Horizontal", 7),
    Sketcher.Constraint("Vertical", 8),
    Sketcher.Constraint("Horizontal", 10),
    Sketcher.Constraint("Vertical", 11),
    Sketcher.Constraint("Equal", 0, 6),
    Sketcher.Constraint("PointOnObject", 0, 3, -1),
    Sketcher.Constraint("PointOnObject", 6, 3, -1),
    Sketcher.Constraint("Horizontal", 2, 2, 6, 1),
    Sketcher.Constraint("Horizontal", 5, 2, 9, 1),
    Sketcher.Constraint("Vertical", 2, 2, 3, 1),
    Sketcher.Constraint("Vertical", 6, 1, 10, 2),
    Sketcher.Constraint("Equal", 10, 11),
    Sketcher.Constraint("DistanceX", 2, 2, 2, 1, 4.5),
    Sketcher.Constraint("DistanceX", 5, 1, 5, 2, 2.7),
    Sketcher.Constraint("DistanceX", 10, 1, 10, 2, 2.8),
    Sketcher.Constraint("DistanceY", 1, 1, 1, 2, 6.5),
    Sketcher.Constraint("DistanceY", 9, 3, -1, 1, 1.0),
    Sketcher.Constraint("DistanceY", 4, 2, -1, 1, 4.0),
    Sketcher.Constraint("DistanceX", 3, 3, 0, 1, 0.9),
    Sketcher.Constraint("DistanceY", 3, 3, -1, 1, 0.33),
    Sketcher.Constraint("DistanceX", -1, 1, 3, 3, 28.139502),
    Sketcher.Constraint("DistanceX", 9, 3, -1, 1, 25.501992),
])
pocket10 = body.newObject("PartDesign::Pocket", "Pocket009")
pocket10.Profile = sketch15
pocket10.Type = "ThroughAll"
pocket10.Midplane = True

doc.recompute()
